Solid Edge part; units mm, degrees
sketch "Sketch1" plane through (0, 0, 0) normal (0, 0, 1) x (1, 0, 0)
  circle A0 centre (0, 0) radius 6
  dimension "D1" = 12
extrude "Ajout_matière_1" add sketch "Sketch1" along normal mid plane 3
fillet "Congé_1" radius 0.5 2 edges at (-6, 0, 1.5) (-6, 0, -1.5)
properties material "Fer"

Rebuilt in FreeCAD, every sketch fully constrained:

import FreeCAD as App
import Part
import Sketcher

V = App.Vector
Q = App.Units.Quantity


def edges_at(feature, points):
    """Names of the edges that pass closest to the given points."""
    edges = feature.Shape.Edges
    near = lambda p: min(range(len(edges)), key=lambda i: edges[i].distToShape(Part.Vertex(*p))[0])
    return sorted({f"Edge{near(p) + 1}" for p in points})

doc = App.newDocument("Part")
params = doc.addObject("Spreadsheet::Sheet", "Params")
for row, (alias, value) in enumerate([
    ("sketch1_diameter", "12 mm"),
    ("pad1_length", "3 mm"),
    ("fillet_radius", "0.5 mm"),
], start=1):
    params.set(f"A{row}", alias)
    params.set(f"B{row}", "=" + value)
    params.setAlias(f"B{row}", alias)

body = doc.addObject("PartDesign::Body", "Body")

sketch1 = body.newObject("Sketcher::SketchObject", "Sketch")
sketch1.AttachmentSupport = (doc.getObject("XY_Plane"), [""])
sketch1.MapMode = "FlatFace"
sketch1.addGeometry(Part.Circle(V(0, 0, 0), V(0, 0, 1), 6), False)
sketch1.addConstraint(Sketcher.Constraint("Coincident", 0, 3, -1, 1))
sketch1.addConstraint(Sketcher.Constraint("Diameter", 0, Q("12 mm")))
sketch1.setExpression("Constraints[1]", "Params.sketch1_diameter")
pad1 = body.newObject("PartDesign::Pad", "Pad")
pad1.Profile = sketch1
pad1.setExpression("Length", "Params.pad1_length")
pad1.Midplane = True
doc.recompute()

fillet = body.newObject("PartDesign::Fillet", "Fillet")
fillet.Base = (pad1, edges_at(pad1, [(-6, 0, 1.5), (-6, 0, -1.5)]))
fillet.setExpression("Radius", "Params.fillet_radius")

doc.recompute()
